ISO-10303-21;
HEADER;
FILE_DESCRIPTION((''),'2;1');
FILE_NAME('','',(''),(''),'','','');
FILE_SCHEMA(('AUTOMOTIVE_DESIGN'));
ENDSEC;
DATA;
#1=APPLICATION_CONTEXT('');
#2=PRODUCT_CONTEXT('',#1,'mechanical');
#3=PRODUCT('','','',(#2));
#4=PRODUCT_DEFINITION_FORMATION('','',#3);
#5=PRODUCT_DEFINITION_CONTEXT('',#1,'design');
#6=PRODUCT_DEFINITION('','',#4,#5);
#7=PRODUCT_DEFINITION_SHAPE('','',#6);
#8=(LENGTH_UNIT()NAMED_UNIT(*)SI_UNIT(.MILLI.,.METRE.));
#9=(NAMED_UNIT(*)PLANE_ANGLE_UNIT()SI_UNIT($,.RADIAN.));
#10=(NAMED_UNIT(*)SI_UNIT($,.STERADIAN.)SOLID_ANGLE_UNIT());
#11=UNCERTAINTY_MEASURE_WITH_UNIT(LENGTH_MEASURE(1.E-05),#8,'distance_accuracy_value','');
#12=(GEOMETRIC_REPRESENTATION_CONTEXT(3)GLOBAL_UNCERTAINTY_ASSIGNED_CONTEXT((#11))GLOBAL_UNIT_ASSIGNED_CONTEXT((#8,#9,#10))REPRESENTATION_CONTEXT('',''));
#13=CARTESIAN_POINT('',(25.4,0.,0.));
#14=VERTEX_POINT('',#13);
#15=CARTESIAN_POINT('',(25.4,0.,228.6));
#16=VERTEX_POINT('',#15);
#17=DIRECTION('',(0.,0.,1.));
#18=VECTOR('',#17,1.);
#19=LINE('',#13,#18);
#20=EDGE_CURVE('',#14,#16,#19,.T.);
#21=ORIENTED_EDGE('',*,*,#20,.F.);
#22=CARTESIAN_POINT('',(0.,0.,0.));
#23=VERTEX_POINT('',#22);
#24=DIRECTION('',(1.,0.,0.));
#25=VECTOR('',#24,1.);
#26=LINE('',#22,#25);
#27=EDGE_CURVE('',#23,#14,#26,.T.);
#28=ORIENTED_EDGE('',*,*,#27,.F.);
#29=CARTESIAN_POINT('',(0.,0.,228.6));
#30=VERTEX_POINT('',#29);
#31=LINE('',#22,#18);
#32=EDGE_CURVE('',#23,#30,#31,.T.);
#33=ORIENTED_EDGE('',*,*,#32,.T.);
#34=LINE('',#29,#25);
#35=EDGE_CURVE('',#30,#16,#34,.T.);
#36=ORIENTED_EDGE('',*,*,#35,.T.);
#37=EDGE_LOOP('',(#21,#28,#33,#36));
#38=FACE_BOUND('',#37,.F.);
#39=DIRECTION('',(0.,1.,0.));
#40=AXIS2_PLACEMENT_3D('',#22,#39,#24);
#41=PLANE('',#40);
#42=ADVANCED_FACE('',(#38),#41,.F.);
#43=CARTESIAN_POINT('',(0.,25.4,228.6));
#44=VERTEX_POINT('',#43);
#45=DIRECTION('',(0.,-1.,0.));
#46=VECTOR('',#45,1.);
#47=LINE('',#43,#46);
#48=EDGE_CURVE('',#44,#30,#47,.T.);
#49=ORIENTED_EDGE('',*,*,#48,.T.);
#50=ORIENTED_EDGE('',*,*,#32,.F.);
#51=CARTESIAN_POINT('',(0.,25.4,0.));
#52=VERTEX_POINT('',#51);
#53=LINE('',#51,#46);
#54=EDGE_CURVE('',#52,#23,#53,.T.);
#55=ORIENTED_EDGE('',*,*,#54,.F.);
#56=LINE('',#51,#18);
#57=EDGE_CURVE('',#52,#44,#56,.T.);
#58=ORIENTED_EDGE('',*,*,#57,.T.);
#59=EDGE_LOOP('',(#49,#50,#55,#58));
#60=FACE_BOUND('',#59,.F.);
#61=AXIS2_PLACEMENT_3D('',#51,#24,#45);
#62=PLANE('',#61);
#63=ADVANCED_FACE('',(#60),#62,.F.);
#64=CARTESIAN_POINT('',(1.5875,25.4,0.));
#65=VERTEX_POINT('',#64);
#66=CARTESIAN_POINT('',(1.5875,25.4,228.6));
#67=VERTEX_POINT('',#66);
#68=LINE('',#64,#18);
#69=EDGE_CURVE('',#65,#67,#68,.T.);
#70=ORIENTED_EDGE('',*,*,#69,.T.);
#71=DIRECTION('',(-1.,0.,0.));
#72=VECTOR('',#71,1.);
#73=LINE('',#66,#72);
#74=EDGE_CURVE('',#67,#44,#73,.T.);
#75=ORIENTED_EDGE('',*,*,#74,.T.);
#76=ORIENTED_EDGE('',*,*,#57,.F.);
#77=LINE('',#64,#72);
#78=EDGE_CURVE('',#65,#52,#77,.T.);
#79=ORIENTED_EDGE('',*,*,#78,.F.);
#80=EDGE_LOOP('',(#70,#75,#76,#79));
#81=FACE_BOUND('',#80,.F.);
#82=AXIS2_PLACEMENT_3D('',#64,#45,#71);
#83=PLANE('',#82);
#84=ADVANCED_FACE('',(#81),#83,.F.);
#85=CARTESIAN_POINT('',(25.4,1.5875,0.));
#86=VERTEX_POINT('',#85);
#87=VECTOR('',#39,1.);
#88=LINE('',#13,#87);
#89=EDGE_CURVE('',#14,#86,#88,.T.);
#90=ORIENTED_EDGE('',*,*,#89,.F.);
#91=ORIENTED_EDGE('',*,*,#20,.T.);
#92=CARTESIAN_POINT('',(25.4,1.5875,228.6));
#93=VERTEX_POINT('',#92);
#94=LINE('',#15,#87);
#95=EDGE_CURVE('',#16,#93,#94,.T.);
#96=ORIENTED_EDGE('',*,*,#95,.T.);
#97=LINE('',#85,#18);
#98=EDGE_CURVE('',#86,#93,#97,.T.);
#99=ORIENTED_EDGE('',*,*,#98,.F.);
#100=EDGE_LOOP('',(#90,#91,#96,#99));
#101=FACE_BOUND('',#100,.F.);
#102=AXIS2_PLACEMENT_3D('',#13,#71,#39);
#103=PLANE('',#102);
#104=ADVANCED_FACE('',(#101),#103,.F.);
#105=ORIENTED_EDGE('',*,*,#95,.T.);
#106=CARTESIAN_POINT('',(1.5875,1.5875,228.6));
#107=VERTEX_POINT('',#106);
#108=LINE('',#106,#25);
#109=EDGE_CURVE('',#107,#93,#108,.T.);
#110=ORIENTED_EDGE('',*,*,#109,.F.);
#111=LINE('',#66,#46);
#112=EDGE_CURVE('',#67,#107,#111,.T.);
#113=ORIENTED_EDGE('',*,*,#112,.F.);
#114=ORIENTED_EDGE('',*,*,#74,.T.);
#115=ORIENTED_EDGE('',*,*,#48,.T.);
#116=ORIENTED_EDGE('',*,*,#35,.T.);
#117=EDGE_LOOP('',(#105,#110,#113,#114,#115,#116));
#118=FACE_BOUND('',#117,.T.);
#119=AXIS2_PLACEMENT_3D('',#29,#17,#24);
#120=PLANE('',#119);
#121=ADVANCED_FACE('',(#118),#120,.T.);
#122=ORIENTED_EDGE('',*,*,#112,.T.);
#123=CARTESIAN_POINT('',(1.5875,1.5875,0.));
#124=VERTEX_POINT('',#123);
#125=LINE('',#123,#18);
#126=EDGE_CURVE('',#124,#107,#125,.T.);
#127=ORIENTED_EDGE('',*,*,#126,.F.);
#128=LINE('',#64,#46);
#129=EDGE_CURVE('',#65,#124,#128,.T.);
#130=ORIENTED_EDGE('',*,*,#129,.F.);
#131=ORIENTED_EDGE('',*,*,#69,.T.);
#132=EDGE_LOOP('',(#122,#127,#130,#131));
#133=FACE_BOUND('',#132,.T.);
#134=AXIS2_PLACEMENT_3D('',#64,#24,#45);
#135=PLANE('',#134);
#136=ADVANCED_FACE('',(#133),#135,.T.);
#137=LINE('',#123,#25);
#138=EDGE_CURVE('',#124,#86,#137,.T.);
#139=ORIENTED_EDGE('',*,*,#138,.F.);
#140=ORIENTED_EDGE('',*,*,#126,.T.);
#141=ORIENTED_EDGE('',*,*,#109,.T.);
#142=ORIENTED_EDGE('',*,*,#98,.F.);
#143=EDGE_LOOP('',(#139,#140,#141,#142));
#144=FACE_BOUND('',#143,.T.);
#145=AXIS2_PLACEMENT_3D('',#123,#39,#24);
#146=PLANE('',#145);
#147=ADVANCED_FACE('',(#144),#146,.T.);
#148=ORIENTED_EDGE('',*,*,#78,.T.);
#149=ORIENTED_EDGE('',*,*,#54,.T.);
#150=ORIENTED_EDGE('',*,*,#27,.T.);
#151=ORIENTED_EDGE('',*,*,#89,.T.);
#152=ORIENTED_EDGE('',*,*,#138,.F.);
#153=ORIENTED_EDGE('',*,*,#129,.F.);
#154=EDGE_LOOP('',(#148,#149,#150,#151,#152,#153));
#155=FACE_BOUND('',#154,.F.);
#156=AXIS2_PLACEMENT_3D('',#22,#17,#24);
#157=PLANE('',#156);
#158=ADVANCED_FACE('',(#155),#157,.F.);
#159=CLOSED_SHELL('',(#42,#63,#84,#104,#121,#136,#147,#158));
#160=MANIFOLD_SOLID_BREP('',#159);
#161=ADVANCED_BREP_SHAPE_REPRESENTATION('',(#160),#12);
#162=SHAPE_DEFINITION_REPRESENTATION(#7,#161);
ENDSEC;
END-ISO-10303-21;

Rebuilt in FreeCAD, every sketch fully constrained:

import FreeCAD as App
import Part
import Sketcher
from FreeCAD import Vector
Q = App.Units.Quantity


def add_polygon(sketch, points):
    """Adds a closed chain of lines whose ends are joined by coincident constraints."""
    first, n = sketch.GeometryCount, len(points)
    for a, b in zip(points, points[1:] + points[:1]):
        sketch.addGeometry(Part.LineSegment(App.Vector(*a, 0), App.Vector(*b, 0)), False)
    for i in range(n):
        sketch.addConstraint(Sketcher.Constraint("Coincident", first + i, 2, first + (i + 1) % n, 1))

doc = App.newDocument("Part")
body = doc.addObject("PartDesign::Body", "Body")

# Sketch on XY plane
sketch1 = body.newObject("Sketcher::SketchObject", "Sketch")
sketch1.AttachmentSupport = (doc.getObject("XY_Plane"), [""])
sketch1.MapMode = "FlatFace"
add_polygon(sketch1, [(0, 25.4), (0, 0), (25.4, 0), (25.4, 1.6), (1.6, 1.6), (1.6, 25.4)])  # lines 0-5
sketch1.addConstraint(Sketcher.Constraint("Vertical", 0))
sketch1.addConstraint(Sketcher.Constraint("Horizontal", 1))
sketch1.addConstraint(Sketcher.Constraint("Vertical", 2))
sketch1.addConstraint(Sketcher.Constraint("Horizontal", 3))
sketch1.addConstraint(Sketcher.Constraint("Vertical", 4))
sketch1.addConstraint(Sketcher.Constraint("Horizontal", 5))
sketch1.addConstraint(Sketcher.Constraint("Coincident", 0, 2, -1, 1))
sketch1.addConstraint(Sketcher.Constraint("Equal", 1, 0))
sketch1.addConstraint(Sketcher.Constraint("Equal", 5, 2))
sketch1.addConstraint(Sketcher.Constraint("DistanceX", 1, 1, 1, 2, Q("1 in")))
sketch1.addConstraint(Sketcher.Constraint("DistanceX", 5, 2, 5, 1, Q("0.0625 in")))
pad1 = body.newObject("PartDesign::Pad", "Pad")
pad1.Profile = sketch1
pad1.Length = Q("9 in")

doc.recompute()
